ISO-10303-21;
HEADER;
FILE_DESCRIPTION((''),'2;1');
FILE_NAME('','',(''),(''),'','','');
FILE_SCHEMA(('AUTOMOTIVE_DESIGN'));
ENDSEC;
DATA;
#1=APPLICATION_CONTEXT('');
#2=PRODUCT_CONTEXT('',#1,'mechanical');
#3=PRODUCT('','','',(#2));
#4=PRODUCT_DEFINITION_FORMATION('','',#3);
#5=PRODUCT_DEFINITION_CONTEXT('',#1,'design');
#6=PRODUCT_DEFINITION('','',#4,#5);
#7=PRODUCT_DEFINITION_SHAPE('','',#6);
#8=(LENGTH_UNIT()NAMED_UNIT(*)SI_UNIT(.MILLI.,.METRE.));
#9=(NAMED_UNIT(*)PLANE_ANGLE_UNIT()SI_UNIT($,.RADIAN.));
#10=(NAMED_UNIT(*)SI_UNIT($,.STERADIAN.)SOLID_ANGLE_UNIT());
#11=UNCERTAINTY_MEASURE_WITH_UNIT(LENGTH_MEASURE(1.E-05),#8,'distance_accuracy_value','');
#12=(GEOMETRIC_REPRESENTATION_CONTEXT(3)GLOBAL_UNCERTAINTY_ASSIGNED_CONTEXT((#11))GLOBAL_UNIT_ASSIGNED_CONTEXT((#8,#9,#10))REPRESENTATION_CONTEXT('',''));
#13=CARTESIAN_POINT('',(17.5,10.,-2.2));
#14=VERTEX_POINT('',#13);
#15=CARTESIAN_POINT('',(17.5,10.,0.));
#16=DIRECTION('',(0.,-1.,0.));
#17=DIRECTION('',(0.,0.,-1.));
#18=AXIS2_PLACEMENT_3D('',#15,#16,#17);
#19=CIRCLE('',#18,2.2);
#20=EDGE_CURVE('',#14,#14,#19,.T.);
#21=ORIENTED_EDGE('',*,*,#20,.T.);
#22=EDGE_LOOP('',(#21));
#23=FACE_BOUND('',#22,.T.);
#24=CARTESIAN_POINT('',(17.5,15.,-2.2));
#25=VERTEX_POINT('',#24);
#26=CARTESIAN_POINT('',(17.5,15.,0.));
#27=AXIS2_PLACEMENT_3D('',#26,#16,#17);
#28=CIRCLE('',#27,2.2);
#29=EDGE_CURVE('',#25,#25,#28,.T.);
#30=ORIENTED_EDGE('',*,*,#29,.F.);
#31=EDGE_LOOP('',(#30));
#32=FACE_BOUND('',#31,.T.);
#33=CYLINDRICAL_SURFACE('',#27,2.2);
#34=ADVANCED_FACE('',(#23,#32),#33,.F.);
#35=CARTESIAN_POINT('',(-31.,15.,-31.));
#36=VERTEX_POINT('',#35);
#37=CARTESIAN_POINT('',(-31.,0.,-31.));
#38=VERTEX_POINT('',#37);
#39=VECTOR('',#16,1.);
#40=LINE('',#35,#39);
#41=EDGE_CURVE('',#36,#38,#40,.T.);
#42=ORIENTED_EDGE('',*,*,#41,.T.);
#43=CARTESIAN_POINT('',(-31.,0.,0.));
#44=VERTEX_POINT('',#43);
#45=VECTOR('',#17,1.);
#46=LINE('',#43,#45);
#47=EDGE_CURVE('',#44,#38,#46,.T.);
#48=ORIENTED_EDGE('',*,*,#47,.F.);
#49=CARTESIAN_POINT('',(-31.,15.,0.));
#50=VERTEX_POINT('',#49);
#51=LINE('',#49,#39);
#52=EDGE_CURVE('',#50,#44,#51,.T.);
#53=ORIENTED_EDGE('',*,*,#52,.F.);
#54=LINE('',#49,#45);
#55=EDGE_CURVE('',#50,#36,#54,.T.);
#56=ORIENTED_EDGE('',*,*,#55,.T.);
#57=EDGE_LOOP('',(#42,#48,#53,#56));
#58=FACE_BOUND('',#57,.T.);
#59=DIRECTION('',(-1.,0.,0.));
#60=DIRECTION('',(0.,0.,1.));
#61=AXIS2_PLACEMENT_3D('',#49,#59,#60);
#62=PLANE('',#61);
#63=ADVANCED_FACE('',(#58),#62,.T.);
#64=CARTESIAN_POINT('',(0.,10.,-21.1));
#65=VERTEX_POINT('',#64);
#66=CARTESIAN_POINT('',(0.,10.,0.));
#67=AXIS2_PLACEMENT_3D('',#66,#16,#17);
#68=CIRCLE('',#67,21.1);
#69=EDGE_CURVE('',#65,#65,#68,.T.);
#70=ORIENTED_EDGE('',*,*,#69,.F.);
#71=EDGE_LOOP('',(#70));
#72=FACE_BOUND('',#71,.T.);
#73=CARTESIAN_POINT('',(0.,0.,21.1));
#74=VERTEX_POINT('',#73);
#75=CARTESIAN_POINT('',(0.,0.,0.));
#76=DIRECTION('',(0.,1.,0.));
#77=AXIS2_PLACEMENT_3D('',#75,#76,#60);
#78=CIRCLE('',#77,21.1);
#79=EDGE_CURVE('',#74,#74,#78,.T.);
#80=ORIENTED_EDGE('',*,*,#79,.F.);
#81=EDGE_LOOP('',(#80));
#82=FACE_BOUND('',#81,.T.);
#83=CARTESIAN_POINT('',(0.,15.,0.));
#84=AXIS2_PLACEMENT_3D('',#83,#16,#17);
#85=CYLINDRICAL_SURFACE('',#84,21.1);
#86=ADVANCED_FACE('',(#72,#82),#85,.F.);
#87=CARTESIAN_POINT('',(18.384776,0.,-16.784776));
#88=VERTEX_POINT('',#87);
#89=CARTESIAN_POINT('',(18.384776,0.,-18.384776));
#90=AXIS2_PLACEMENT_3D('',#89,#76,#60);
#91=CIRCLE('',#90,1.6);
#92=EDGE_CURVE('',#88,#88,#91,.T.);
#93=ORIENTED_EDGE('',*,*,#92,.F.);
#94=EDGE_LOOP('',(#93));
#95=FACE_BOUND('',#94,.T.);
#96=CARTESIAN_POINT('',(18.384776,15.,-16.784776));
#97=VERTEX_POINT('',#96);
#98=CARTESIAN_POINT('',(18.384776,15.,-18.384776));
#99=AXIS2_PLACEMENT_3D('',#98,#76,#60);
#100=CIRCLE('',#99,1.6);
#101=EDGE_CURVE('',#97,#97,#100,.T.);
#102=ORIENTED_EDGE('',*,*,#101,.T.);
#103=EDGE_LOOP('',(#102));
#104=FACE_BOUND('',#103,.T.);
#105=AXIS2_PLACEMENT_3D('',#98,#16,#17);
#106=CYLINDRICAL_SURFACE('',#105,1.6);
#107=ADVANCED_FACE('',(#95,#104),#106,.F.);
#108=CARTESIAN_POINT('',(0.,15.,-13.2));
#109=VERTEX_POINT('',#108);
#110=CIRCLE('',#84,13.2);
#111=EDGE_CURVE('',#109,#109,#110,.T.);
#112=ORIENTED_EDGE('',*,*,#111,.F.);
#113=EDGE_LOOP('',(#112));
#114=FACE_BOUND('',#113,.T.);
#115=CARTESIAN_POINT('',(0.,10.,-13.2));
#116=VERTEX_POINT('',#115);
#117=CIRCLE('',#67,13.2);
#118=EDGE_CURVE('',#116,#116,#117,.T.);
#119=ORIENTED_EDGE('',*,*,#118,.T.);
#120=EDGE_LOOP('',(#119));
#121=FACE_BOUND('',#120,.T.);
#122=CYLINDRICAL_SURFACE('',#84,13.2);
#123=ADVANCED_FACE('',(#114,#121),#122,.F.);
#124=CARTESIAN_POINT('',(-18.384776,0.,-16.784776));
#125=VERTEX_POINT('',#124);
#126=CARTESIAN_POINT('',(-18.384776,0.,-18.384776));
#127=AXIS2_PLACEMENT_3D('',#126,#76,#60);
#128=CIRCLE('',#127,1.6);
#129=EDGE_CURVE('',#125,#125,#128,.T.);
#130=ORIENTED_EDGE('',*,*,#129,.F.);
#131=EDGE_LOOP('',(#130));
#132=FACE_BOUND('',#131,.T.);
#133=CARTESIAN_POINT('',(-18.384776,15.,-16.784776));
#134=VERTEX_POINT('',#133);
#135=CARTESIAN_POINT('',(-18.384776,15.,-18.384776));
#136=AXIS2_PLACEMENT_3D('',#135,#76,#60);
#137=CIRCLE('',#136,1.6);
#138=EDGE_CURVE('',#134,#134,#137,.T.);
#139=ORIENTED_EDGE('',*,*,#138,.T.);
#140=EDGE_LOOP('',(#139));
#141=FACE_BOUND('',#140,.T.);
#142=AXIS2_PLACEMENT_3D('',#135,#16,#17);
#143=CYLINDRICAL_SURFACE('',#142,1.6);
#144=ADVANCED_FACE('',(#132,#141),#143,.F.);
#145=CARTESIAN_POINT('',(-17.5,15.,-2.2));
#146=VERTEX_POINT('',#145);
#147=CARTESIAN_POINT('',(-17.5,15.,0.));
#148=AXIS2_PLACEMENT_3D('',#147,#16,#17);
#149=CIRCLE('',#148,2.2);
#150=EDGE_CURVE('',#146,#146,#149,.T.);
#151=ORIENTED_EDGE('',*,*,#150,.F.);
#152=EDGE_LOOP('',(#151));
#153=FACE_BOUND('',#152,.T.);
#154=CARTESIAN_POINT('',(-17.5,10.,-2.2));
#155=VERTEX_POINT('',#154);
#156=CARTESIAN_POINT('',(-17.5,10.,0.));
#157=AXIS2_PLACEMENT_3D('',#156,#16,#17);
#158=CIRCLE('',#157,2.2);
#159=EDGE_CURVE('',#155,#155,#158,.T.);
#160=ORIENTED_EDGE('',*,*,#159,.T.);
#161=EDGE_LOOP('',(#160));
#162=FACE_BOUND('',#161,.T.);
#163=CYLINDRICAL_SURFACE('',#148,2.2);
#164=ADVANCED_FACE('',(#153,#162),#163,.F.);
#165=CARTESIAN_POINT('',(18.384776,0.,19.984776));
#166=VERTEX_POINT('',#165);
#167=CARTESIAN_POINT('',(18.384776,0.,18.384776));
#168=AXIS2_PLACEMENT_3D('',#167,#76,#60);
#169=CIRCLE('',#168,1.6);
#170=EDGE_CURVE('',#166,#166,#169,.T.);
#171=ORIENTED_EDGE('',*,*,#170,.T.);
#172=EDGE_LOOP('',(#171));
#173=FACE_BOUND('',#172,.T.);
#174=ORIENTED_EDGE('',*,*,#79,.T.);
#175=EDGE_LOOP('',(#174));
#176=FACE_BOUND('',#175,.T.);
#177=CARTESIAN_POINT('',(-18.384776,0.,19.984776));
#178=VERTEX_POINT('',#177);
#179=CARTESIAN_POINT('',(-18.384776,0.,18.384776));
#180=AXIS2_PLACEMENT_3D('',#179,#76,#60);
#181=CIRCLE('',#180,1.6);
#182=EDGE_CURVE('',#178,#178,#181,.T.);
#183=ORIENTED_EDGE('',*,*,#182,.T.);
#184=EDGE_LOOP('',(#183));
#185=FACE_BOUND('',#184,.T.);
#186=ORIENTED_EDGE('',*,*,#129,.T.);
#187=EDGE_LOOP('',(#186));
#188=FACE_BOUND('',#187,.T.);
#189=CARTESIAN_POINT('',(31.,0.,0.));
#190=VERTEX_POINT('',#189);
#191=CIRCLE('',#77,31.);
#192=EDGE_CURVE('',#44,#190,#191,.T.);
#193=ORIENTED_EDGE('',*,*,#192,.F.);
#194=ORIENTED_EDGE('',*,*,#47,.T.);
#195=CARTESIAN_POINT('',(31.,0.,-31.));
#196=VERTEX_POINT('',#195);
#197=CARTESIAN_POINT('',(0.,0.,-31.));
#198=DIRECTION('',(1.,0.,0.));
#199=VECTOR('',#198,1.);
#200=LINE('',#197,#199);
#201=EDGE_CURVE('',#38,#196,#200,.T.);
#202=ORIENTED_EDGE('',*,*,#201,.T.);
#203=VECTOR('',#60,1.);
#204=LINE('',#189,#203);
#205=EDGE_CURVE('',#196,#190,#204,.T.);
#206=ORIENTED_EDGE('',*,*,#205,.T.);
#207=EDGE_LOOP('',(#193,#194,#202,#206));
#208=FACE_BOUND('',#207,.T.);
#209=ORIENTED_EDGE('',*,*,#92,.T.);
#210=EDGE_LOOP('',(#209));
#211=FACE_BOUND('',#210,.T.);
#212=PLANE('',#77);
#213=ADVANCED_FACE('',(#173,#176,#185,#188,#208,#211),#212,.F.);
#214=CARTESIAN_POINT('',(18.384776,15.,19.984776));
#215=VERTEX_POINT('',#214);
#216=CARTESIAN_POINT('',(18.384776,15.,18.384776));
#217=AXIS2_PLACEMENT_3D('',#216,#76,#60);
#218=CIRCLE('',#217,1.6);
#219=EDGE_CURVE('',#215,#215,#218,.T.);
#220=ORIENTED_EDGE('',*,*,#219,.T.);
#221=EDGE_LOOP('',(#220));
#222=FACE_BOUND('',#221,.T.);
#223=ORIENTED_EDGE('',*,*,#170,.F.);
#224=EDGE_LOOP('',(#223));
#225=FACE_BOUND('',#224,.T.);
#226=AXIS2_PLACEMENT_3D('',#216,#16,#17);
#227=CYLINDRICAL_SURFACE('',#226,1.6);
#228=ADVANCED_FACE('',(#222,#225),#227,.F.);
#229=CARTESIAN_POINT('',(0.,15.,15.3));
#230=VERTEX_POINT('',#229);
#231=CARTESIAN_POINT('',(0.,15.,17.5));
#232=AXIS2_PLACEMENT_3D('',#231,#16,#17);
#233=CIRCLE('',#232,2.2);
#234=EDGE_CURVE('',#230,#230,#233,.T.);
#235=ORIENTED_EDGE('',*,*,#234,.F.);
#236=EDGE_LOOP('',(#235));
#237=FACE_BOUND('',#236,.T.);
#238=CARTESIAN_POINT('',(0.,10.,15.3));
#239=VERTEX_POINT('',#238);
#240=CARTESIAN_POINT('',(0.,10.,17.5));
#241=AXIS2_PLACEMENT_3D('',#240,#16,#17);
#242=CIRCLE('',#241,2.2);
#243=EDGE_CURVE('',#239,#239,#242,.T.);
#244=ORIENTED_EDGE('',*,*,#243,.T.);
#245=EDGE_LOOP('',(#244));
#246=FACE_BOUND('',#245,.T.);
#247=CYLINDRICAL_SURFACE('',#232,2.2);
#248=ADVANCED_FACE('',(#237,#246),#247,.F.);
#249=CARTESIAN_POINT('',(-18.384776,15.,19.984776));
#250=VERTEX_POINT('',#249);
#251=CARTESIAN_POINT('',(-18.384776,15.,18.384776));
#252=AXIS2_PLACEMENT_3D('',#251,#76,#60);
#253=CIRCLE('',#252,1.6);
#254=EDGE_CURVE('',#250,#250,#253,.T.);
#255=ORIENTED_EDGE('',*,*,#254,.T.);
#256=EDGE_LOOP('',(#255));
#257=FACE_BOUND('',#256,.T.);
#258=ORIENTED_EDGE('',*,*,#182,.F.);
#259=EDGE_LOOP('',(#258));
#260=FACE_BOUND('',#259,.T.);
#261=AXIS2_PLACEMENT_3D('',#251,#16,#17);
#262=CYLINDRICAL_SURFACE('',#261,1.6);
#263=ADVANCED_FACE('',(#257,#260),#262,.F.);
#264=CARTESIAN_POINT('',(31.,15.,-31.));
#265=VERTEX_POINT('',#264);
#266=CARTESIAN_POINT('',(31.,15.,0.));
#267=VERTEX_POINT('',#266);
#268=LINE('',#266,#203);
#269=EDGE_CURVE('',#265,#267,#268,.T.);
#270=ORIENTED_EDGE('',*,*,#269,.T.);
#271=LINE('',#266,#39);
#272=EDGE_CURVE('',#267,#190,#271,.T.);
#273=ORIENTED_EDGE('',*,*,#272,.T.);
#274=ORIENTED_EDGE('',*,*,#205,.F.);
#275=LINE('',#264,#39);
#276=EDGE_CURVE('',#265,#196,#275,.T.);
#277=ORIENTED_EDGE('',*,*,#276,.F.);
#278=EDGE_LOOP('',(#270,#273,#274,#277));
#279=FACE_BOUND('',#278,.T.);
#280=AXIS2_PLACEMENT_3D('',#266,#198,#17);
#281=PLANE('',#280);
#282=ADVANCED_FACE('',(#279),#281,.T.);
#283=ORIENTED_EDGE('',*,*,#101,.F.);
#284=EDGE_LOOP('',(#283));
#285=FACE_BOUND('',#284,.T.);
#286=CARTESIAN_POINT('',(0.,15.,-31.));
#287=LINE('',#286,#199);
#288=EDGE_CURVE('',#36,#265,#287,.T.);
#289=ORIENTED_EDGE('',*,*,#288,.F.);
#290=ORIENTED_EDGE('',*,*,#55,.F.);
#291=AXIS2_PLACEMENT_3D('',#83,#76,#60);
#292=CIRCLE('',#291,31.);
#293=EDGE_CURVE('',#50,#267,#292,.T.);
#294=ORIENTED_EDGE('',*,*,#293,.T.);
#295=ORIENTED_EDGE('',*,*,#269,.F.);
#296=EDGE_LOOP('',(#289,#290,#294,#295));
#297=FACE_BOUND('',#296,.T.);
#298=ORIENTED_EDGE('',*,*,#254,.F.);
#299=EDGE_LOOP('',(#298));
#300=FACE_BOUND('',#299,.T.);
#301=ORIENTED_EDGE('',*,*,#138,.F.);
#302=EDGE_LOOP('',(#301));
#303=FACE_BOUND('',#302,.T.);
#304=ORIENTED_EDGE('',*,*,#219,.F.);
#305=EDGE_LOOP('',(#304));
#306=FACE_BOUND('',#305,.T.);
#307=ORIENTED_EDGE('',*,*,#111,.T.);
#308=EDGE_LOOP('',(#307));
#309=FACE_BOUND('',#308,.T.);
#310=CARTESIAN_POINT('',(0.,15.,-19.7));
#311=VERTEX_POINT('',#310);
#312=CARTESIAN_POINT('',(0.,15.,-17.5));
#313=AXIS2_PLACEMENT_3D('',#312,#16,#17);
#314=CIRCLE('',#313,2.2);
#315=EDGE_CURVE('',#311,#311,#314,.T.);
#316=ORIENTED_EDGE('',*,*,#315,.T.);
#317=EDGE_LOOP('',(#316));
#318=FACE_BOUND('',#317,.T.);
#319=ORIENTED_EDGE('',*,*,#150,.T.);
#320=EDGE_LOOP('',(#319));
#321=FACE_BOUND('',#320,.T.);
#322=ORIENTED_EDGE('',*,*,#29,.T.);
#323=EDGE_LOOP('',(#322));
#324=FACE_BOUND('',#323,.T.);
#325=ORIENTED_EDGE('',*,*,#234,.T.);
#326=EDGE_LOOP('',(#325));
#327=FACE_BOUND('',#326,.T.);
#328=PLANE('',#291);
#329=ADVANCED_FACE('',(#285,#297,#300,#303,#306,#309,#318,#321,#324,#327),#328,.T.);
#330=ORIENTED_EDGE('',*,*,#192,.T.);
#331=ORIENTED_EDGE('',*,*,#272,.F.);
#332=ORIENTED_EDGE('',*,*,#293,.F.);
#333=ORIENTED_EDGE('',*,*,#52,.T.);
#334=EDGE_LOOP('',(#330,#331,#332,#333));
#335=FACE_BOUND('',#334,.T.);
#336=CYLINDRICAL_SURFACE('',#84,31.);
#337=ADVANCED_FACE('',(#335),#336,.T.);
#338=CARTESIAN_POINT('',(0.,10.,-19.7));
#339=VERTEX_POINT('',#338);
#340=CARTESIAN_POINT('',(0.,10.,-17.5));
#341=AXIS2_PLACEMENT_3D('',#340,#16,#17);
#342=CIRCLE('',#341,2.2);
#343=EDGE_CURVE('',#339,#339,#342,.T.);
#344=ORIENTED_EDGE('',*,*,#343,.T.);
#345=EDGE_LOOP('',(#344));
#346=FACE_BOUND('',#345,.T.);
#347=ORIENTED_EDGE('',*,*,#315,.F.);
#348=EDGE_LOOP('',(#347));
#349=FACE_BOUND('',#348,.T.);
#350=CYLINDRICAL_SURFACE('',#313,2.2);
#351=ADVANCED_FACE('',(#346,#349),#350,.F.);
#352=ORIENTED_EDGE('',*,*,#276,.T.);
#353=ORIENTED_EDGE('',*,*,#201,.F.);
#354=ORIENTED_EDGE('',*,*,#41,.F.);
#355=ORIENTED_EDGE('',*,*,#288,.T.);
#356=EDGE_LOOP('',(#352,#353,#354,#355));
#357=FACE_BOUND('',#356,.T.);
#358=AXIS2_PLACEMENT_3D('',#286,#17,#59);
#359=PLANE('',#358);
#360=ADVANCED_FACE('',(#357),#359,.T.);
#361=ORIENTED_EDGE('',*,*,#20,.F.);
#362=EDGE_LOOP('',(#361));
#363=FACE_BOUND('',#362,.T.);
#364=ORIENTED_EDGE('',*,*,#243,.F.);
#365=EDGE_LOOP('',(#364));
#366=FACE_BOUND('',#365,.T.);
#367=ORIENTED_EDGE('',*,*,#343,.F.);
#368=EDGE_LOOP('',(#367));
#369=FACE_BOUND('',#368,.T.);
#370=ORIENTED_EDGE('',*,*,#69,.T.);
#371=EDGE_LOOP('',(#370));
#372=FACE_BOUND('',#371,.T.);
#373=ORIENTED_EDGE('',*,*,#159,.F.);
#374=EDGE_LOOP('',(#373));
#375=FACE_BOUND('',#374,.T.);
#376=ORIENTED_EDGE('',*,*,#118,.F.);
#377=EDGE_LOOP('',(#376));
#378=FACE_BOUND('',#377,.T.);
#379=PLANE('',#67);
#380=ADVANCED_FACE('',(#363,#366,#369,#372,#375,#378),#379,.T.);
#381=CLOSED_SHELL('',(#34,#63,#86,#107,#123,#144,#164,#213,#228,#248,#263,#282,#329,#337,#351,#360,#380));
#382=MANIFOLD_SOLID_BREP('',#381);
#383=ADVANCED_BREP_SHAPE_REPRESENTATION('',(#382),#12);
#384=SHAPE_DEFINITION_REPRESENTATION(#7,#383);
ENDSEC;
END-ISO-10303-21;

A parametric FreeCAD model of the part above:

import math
import FreeCAD as App
import Part
import Sketcher

V = App.Vector

doc = App.newDocument("Part")
body = doc.addObject("PartDesign::Body", "Body")

sketch1 = doc.addObject("Sketcher::SketchObject", "Sketch")
body.addObject(sketch1)
sketch1.AttachmentSupport = (doc.XZ_Plane, [""])
sketch1.MapMode = "FlatFace"
sketch1.addGeometry(Part.ArcOfCircle(Part.Circle(V(0, 0, 0), V(0, 0, 1), 31), math.radians(0), math.radians(180)), False)
sketch1.addGeometry(Part.LineSegment(V(31, 0, 0), V(31, -31, 0)), False)
sketch1.addGeometry(Part.LineSegment(V(31, -31, 0), V(-31, -31, 0)), False)
sketch1.addGeometry(Part.LineSegment(V(-31, -31, 0), V(-31, 0, 0)), False)
sketch1.addGeometry(Part.Circle(V(-18.4, 18.4, 0), V(0, 0, 1), 1.6), False)
sketch1.addGeometry(Part.Circle(V(18.4, 18.4, 0), V(0, 0, 1), 1.6), False)
sketch1.addGeometry(Part.Circle(V(-18.4, -18.4, 0), V(0, 0, 1), 1.6), False)
sketch1.addGeometry(Part.Circle(V(0, 0, 0), V(0, 0, 1), 21.1), False)
sketch1.addGeometry(Part.Circle(V(18.4, -18.4, 0), V(0, 0, 1), 1.6), False)
sketch1.addConstraint(Sketcher.Constraint("Tangent", 0, 1, 1, 1))
sketch1.addConstraint(Sketcher.Constraint("Coincident", 1, 2, 2, 1))
sketch1.addConstraint(Sketcher.Constraint("Coincident", 2, 2, 3, 1))
sketch1.addConstraint(Sketcher.Constraint("Tangent", 3, 2, 0, 2))
sketch1.addConstraint(Sketcher.Constraint("Vertical", 1))
sketch1.addConstraint(Sketcher.Constraint("Horizontal", 2))
sketch1.addConstraint(Sketcher.Constraint("Vertical", 3))
sketch1.addConstraint(Sketcher.Constraint("Coincident", 0, 3, -1, 1))
sketch1.addConstraint(Sketcher.Constraint("Coincident", 7, 3, -1, 1))
sketch1.addConstraint(Sketcher.Constraint("Equal", 4, 5))
sketch1.addConstraint(Sketcher.Constraint("Equal", 5, 6))
sketch1.addConstraint(Sketcher.Constraint("Equal", 6, 8))
sketch1.addConstraint(Sketcher.Constraint("Symmetric", 5, 3, 6, 3, -1, 1))
sketch1.addConstraint(Sketcher.Constraint("Symmetric", 4, 3, 8, 3, -1, 1))
sketch1.addConstraint(Sketcher.Constraint("Symmetric", 4, 3, 5, 3, -2))
sketch1.addConstraint(Sketcher.Constraint("Radius", 0, 31.0))
sketch1.addConstraint(Sketcher.Constraint("Diameter", 4, 3.2))
sketch1.addConstraint(Sketcher.Constraint("Diameter", 7, 42.2))
sketch1.addConstraint(Sketcher.Constraint("DistanceY", 1, 2, 1, 1, 31.0))
sketch1.addConstraint(Sketcher.Constraint("DistanceX", 4, 3, -1, 1, 18.384776))
sketch1.addConstraint(Sketcher.Constraint("DistanceY", -1, 1, 4, 3, 18.384776))
pad1 = doc.addObject("PartDesign::Pad", "Pad")
body.addObject(pad1)
pad1.Profile = sketch1
pad1.Length = 15
pad1.Reversed = True

sketch2 = doc.addObject("Sketcher::SketchObject", "Sketch001")
body.addObject(sketch2)
sketch2.AttachmentSupport = (doc.XZ_Plane, [""])
sketch2.MapMode = "FlatFace"
sketch2.AttachmentOffset = App.Placement(V(0, 0, -10), App.Rotation())
sketch2.addGeometry(Part.Circle(V(0, 0, 0), V(0, 0, 1), 21.1), False)
sketch2.addGeometry(Part.Circle(V(0, 17.5, 0), V(0, 0, 1), 2.2), False)
sketch2.addGeometry(Part.Circle(V(-17.5, 0, 0), V(0, 0, 1), 2.2), False)
sketch2.addGeometry(Part.Circle(V(17.5, 0, 0), V(0, 0, 1), 2.2), False)
sketch2.addGeometry(Part.Circle(V(0, 0, 0), V(0, 0, 1), 13.2), False)
sketch2.addGeometry(Part.Circle(V(0, -17.5, 0), V(0, 0, 1), 2.2), False)
sketch2.addConstraint(Sketcher.Constraint("Coincident", 0, 3, -1, 1))
sketch2.addConstraint(Sketcher.Constraint("Coincident", 4, 3, -1, 1))
sketch2.addConstraint(Sketcher.Constraint("Equal", 1, 2))
sketch2.addConstraint(Sketcher.Constraint("Equal", 2, 3))
sketch2.addConstraint(Sketcher.Constraint("Equal", 3, 5))
sketch2.addConstraint(Sketcher.Constraint("Symmetric", 2, 3, 3, 3, -1, 1))
sketch2.addConstraint(Sketcher.Constraint("Symmetric", 1, 3, 5, 3, -1, 1))
sketch2.addConstraint(Sketcher.Constraint("PointOnObject", 1, 3, -2))
sketch2.addConstraint(Sketcher.Constraint("PointOnObject", 2, 3, -1))
sketch2.addConstraint(Sketcher.Constraint("Diameter", 0, 42.2))
sketch2.addConstraint(Sketcher.Constraint("Diameter", 1, 4.4))
sketch2.addConstraint(Sketcher.Constraint("Diameter", 4, 26.4))
sketch2.addConstraint(Sketcher.Constraint("DistanceX", 2, 3, 3, 3, 35.0))
sketch2.addConstraint(Sketcher.Constraint("DistanceY", 5, 3, 1, 3, 35.0))
pad2 = doc.addObject("PartDesign::Pad", "Pad001")
body.addObject(pad2)
pad2.Profile = sketch2
pad2.Length = 5
pad2.Reversed = True

doc.recompute()
